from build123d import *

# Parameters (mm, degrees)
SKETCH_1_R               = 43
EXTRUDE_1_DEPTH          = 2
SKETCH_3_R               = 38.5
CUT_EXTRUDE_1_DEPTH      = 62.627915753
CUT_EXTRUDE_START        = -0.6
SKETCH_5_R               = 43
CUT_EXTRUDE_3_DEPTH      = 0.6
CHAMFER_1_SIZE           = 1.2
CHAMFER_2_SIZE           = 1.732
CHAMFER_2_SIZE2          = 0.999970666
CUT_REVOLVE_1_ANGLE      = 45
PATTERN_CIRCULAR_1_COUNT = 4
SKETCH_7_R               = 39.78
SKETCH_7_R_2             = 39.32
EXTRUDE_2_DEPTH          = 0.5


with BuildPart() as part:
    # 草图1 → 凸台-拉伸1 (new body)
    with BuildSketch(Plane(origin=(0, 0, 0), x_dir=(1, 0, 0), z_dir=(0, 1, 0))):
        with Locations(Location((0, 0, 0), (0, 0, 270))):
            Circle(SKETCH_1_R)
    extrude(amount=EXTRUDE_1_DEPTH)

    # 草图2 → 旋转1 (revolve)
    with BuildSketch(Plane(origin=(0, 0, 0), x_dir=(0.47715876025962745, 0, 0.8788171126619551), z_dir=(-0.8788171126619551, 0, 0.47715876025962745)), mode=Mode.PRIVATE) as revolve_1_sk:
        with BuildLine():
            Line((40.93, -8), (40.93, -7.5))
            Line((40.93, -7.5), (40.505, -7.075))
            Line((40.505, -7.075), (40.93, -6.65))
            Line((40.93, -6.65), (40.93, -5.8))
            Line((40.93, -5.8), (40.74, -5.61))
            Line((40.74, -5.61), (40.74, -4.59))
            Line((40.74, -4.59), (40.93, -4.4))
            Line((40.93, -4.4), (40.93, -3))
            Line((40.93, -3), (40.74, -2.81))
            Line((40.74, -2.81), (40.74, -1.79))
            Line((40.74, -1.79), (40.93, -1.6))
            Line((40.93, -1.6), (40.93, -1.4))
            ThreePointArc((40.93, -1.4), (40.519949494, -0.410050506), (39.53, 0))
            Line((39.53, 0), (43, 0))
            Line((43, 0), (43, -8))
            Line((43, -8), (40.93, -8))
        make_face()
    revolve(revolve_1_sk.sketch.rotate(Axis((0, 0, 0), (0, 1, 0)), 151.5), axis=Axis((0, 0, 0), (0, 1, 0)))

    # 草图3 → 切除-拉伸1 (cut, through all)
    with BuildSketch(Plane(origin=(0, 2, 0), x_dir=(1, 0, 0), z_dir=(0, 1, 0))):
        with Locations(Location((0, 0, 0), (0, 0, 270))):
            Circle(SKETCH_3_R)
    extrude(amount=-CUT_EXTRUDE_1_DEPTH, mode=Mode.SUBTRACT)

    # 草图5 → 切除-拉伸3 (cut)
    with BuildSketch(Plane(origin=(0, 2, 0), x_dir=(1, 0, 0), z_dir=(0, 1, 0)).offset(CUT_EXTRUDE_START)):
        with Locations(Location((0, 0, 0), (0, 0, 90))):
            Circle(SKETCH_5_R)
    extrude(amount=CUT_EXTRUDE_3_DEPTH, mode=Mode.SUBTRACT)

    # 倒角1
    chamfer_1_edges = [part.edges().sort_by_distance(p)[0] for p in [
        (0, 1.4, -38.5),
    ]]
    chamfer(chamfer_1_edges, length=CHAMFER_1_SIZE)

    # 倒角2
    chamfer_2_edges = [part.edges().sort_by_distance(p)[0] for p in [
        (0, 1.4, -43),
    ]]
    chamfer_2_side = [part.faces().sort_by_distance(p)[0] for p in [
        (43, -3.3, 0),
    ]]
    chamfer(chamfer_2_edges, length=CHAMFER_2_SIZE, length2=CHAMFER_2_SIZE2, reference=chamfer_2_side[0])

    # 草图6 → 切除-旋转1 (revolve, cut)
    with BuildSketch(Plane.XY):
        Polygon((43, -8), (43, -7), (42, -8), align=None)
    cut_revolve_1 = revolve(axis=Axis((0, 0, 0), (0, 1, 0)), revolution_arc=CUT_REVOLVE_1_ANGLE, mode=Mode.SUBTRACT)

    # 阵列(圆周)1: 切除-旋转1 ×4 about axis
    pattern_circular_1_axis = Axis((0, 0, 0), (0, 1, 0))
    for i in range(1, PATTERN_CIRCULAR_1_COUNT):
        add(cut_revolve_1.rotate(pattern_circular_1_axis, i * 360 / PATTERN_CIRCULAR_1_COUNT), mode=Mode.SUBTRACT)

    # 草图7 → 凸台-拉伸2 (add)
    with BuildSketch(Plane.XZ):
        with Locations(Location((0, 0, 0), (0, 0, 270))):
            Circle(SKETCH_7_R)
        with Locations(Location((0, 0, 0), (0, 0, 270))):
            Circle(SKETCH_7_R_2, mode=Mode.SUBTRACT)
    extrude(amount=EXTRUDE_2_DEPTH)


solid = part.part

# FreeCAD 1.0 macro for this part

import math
import FreeCAD as App
import Part
import Sketcher

V = App.Vector
Q = App.Units.Quantity


def edges_at(feature, points):
    """Names of the edges that pass closest to the given points."""
    edges = feature.Shape.Edges
    near = lambda p: min(range(len(edges)), key=lambda i: edges[i].distToShape(Part.Vertex(*p))[0])
    return sorted({f"Edge{near(p) + 1}" for p in points})


def add_polygon(sketch, points):
    """Adds a closed chain of lines whose ends are joined by coincident constraints."""
    first, n = sketch.GeometryCount, len(points)
    for a, b in zip(points, points[1:] + points[:1]):
        sketch.addGeometry(Part.LineSegment(App.Vector(*a, 0), App.Vector(*b, 0)), False)
    for i in range(n):
        sketch.addConstraint(Sketcher.Constraint("Coincident", first + i, 2, first + (i + 1) % n, 1))

doc = App.newDocument("Part")
body = doc.addObject("PartDesign::Body", "Body")

# Sketch on XZ plane
sketch1 = doc.addObject("Sketcher::SketchObject", "Sketch")
body.addObject(sketch1)
sketch1.AttachmentSupport = (doc.XZ_Plane, [""])
sketch1.MapMode = "FlatFace"
sketch1.addGeometry(Part.Circle(V(0, 0, 0), V(0, 0, 1), 43), False)
sketch1.addConstraint([
    Sketcher.Constraint("Coincident", 0, 3, -1, 1),
    Sketcher.Constraint("Diameter", 0, Q("86 mm")),
])
pad1 = doc.addObject("PartDesign::Pad", "Pad")
body.addObject(pad1)
pad1.Profile = sketch1
pad1.Length = 2
pad1.Reversed = True

# Sketch on an angled plane
sketch2 = doc.addObject("Sketcher::SketchObject", "Sketch001")
body.addObject(sketch2)
sketch2.Placement = App.Placement(V(0, 0, 0), App.Rotation(V(0.47715876, 0, 0.878817113), V(0, 1, 0), V(-0.878817113, 0, 0.47715876), "ZXY"))
sketch2.addGeometry([
    Part.LineSegment(V(40.93, -7.5, 0), V(40.93, -8, 0)),  # 0
    Part.LineSegment(V(40.93, -8, 0), V(43, -8, 0)),  # 1
    Part.LineSegment(V(43, -8, 0), V(43, 0, 0)),  # 2
    Part.LineSegment(V(43, 0, 0), V(39.53, 0, 0)),  # 3
    Part.ArcOfCircle(Part.Circle(V(39.53, -1.4, 0), V(0, 0, 1), 1.4), math.radians(0), math.radians(90)),  # 4
    Part.LineSegment(V(40.93, -1.4, 0), V(40.93, -1.6, 0)),  # 5
    Part.LineSegment(V(40.93, -1.6, 0), V(40.74, -1.79, 0)),  # 6
    Part.LineSegment(V(40.74, -1.79, 0), V(40.74, -2.81, 0)),  # 7
    Part.LineSegment(V(40.74, -2.81, 0), V(40.93, -3, 0)),  # 8
    Part.LineSegment(V(40.93, -3, 0), V(40.93, -4.4, 0)),  # 9
    Part.LineSegment(V(40.93, -4.4, 0), V(40.74, -4.59, 0)),  # 10
    Part.LineSegment(V(40.74, -4.59, 0), V(40.74, -5.61, 0)),  # 11
    Part.LineSegment(V(40.74, -5.61, 0), V(40.93, -5.8, 0)),  # 12
    Part.LineSegment(V(40.93, -5.8, 0), V(40.93, -6.65, 0)),  # 13
    Part.LineSegment(V(40.93, -6.65, 0), V(40.51, -7.08, 0)),  # 14
    Part.LineSegment(V(40.51, -7.08, 0), V(40.93, -7.5, 0)),  # 15
], False)
sketch2.addConstraint([
    Sketcher.Constraint("Coincident", 0, 2, 1, 1),
    Sketcher.Constraint("Coincident", 1, 2, 2, 1),
    Sketcher.Constraint("Coincident", 2, 2, 3, 1),
    Sketcher.Constraint("Tangent", 3, 2, 4, 2),
    Sketcher.Constraint("Tangent", 4, 1, 5, 1),
    Sketcher.Constraint("Coincident", 5, 2, 6, 1),
    Sketcher.Constraint("Coincident", 6, 2, 7, 1),
    Sketcher.Constraint("Coincident", 7, 2, 8, 1),
    Sketcher.Constraint("Coincident", 8, 2, 9, 1),
    Sketcher.Constraint("Coincident", 9, 2, 10, 1),
    Sketcher.Constraint("Coincident", 10, 2, 11, 1),
    Sketcher.Constraint("Coincident", 11, 2, 12, 1),
    Sketcher.Constraint("Coincident", 12, 2, 13, 1),
    Sketcher.Constraint("Coincident", 13, 2, 14, 1),
    Sketcher.Constraint("Coincident", 14, 2, 15, 1),
    Sketcher.Constraint("Coincident", 15, 2, 0, 1),
    Sketcher.Constraint("Vertical", 0),
    Sketcher.Constraint("Horizontal", 1),
    Sketcher.Constraint("Vertical", 2),
    Sketcher.Constraint("Horizontal", 3),
    Sketcher.Constraint("Vertical", 5),
    Sketcher.Constraint("Vertical", 7),
    Sketcher.Constraint("Vertical", 9),
    Sketcher.Constraint("Vertical", 11),
    Sketcher.Constraint("Vertical", 13),
    Sketcher.Constraint("PointOnObject", 2, 2, -1),
    Sketcher.Constraint("Perpendicular", 6, 8),
    Sketcher.Constraint("Perpendicular", 8, 10),
    Sketcher.Constraint("Perpendicular", 10, 12),
    Sketcher.Constraint("Perpendicular", 12, 14),
    Sketcher.Constraint("Perpendicular", 14, 15),
    Sketcher.Constraint("Vertical", 0, 2, 4, 1),
    Sketcher.Constraint("Vertical", 5, 2, 8, 2),
    Sketcher.Constraint("Vertical", 7, 2, 10, 2),
    Sketcher.Constraint("Vertical", 9, 2, 12, 2),
    Sketcher.Constraint("Equal", 7, 11),
    Sketcher.Constraint("Equal", 6, 8),
    Sketcher.Constraint("Radius", 4, Q("1.4 mm")),
    Sketcher.Constraint("DistanceY", 2, 1, 2, 2, Q("8 mm")),
    Sketcher.Constraint("DistanceY", 0, 2, 0, 1, Q("0.5 mm")),
    Sketcher.Constraint("DistanceY", 5, 2, 5, 1, Q("0.2 mm")),
    Sketcher.Constraint("DistanceY", 9, 2, 9, 1, Q("1.4 mm")),
    Sketcher.Constraint("DistanceX", -1, 1, 1, 2, Q("43 mm")),
    Sketcher.Constraint("DistanceY", 8, 2, -1, 1, Q("3 mm")),
    Sketcher.Constraint("DistanceX", 1, 1, 1, 2, Q("2.07 mm")),
    Sketcher.Constraint("DistanceY", 7, 2, 7, 1, Q("1.02 mm")),
    Sketcher.Constraint("DistanceY", 13, 2, 13, 1, Q("0.85 mm")),
])
revolution = doc.addObject("PartDesign::Revolution", "Revolution")
body.addObject(revolution)
revolution.Profile = sketch2
revolution.ReferenceAxis = (sketch2, ["V_Axis"])
revolution.Angle = 360

# Sketch on XZ plane
sketch3 = doc.addObject("Sketcher::SketchObject", "Sketch002")
body.addObject(sketch3)
sketch3.AttachmentSupport = (doc.XZ_Plane, [""])
sketch3.MapMode = "FlatFace"
sketch3.AttachmentOffset = App.Placement(V(0, 0, -2), App.Rotation())
sketch3.addGeometry(Part.Circle(V(0, 0, 0), V(0, 0, 1), 38), False)
sketch3.addConstraint([
    Sketcher.Constraint("Coincident", 0, 3, -1, 1),
    Sketcher.Constraint("Diameter", 0, Q("77 mm")),
])
pocket1 = doc.addObject("PartDesign::Pocket", "Pocket")
body.addObject(pocket1)
pocket1.Profile = sketch3
pocket1.Type = "ThroughAll"
pocket1.Reversed = True

# Sketch on XZ plane
sketch4 = doc.addObject("Sketcher::SketchObject", "Sketch003")
body.addObject(sketch4)
sketch4.AttachmentSupport = (doc.XZ_Plane, [""])
sketch4.MapMode = "FlatFace"
sketch4.AttachmentOffset = App.Placement(V(0, 0, -1.4), App.Rotation())
sketch4.addGeometry(Part.Circle(V(0, 0, 0), V(0, 0, 1), 43), False)
sketch4.addConstraint([
    Sketcher.Constraint("Coincident", 0, 3, -1, 1),
    Sketcher.Constraint("Diameter", 0, Q("86 mm")),
])
pocket2 = doc.addObject("PartDesign::Pocket", "Pocket001")
body.addObject(pocket2)
pocket2.Profile = sketch4
pocket2.Length = 0.6
doc.recompute()

chamfer = doc.addObject("PartDesign::Chamfer", "Chamfer")
body.addObject(chamfer)
chamfer.Base = (pocket2, edges_at(pocket2, [(0, 1.4, -38.5)]))
chamfer.Size = 1.2
doc.recompute()

chamfer2 = doc.addObject("PartDesign::Chamfer", "Chamfer001")
body.addObject(chamfer2)
chamfer2.Base = (chamfer, edges_at(chamfer, [(0, 1.4, -43)]))
chamfer2.ChamferType = "Two distances"
chamfer2.Size = 1.732
chamfer2.Size2 = 0.999971
chamfer2.FlipDirection = True

# Sketch on XY plane
sketch5 = doc.addObject("Sketcher::SketchObject", "Sketch004")
body.addObject(sketch5)
sketch5.AttachmentSupport = (doc.XY_Plane, [""])
sketch5.MapMode = "FlatFace"
add_polygon(sketch5, [(43, -8), (43, -7), (42, -8)])  # lines 0-2
sketch5.addConstraint([
    Sketcher.Constraint("Vertical", 0),
    Sketcher.Constraint("Horizontal", 2),
    Sketcher.Constraint("Equal", 2, 0),
    Sketcher.Constraint("DistanceX", 2, 1, 2, 2, Q("1 mm")),
    Sketcher.Constraint("DistanceX", -1, 1, 0, 2, Q("43 mm")),
    Sketcher.Constraint("DistanceY", 0, 2, -1, 1, Q("7 mm")),
])
groove = doc.addObject("PartDesign::Groove", "Groove")
body.addObject(groove)
groove.Profile = sketch5
groove.ReferenceAxis = (sketch5, ["V_Axis"])
groove.Angle = 45
doc.recompute()

polarpattern = doc.addObject("PartDesign::PolarPattern", "PolarPattern")
body.addObject(polarpattern)
polarpattern.Originals = [groove]
polarpattern.Axis = (doc.Y_Axis, [""])
polarpattern.Angle = 360
polarpattern.Occurrences = 4
body.Tip = polarpattern

# Sketch on XZ plane
sketch6 = doc.addObject("Sketcher::SketchObject", "Sketch005")
body.addObject(sketch6)
sketch6.AttachmentSupport = (doc.XZ_Plane, [""])
sketch6.MapMode = "FlatFace"
sketch6.addGeometry([
    Part.Circle(V(0, 0, 0), V(0, 0, 1), 40),
    Part.Circle(V(0, 0, 0), V(0, 0, 1), 39),
], False)
sketch6.addConstraint([
    Sketcher.Constraint("Coincident", 0, 3, -1, 1),
    Sketcher.Constraint("Coincident", 1, 3, -1, 1),
    Sketcher.Constraint("Diameter", 0, Q("79.56 mm")),
    Sketcher.Constraint("Diameter", 1, Q("78.64 mm")),
])
pad2 = doc.addObject("PartDesign::Pad", "Pad001")
body.addObject(pad2)
pad2.Profile = sketch6
pad2.Length = 0.5

doc.recompute()
